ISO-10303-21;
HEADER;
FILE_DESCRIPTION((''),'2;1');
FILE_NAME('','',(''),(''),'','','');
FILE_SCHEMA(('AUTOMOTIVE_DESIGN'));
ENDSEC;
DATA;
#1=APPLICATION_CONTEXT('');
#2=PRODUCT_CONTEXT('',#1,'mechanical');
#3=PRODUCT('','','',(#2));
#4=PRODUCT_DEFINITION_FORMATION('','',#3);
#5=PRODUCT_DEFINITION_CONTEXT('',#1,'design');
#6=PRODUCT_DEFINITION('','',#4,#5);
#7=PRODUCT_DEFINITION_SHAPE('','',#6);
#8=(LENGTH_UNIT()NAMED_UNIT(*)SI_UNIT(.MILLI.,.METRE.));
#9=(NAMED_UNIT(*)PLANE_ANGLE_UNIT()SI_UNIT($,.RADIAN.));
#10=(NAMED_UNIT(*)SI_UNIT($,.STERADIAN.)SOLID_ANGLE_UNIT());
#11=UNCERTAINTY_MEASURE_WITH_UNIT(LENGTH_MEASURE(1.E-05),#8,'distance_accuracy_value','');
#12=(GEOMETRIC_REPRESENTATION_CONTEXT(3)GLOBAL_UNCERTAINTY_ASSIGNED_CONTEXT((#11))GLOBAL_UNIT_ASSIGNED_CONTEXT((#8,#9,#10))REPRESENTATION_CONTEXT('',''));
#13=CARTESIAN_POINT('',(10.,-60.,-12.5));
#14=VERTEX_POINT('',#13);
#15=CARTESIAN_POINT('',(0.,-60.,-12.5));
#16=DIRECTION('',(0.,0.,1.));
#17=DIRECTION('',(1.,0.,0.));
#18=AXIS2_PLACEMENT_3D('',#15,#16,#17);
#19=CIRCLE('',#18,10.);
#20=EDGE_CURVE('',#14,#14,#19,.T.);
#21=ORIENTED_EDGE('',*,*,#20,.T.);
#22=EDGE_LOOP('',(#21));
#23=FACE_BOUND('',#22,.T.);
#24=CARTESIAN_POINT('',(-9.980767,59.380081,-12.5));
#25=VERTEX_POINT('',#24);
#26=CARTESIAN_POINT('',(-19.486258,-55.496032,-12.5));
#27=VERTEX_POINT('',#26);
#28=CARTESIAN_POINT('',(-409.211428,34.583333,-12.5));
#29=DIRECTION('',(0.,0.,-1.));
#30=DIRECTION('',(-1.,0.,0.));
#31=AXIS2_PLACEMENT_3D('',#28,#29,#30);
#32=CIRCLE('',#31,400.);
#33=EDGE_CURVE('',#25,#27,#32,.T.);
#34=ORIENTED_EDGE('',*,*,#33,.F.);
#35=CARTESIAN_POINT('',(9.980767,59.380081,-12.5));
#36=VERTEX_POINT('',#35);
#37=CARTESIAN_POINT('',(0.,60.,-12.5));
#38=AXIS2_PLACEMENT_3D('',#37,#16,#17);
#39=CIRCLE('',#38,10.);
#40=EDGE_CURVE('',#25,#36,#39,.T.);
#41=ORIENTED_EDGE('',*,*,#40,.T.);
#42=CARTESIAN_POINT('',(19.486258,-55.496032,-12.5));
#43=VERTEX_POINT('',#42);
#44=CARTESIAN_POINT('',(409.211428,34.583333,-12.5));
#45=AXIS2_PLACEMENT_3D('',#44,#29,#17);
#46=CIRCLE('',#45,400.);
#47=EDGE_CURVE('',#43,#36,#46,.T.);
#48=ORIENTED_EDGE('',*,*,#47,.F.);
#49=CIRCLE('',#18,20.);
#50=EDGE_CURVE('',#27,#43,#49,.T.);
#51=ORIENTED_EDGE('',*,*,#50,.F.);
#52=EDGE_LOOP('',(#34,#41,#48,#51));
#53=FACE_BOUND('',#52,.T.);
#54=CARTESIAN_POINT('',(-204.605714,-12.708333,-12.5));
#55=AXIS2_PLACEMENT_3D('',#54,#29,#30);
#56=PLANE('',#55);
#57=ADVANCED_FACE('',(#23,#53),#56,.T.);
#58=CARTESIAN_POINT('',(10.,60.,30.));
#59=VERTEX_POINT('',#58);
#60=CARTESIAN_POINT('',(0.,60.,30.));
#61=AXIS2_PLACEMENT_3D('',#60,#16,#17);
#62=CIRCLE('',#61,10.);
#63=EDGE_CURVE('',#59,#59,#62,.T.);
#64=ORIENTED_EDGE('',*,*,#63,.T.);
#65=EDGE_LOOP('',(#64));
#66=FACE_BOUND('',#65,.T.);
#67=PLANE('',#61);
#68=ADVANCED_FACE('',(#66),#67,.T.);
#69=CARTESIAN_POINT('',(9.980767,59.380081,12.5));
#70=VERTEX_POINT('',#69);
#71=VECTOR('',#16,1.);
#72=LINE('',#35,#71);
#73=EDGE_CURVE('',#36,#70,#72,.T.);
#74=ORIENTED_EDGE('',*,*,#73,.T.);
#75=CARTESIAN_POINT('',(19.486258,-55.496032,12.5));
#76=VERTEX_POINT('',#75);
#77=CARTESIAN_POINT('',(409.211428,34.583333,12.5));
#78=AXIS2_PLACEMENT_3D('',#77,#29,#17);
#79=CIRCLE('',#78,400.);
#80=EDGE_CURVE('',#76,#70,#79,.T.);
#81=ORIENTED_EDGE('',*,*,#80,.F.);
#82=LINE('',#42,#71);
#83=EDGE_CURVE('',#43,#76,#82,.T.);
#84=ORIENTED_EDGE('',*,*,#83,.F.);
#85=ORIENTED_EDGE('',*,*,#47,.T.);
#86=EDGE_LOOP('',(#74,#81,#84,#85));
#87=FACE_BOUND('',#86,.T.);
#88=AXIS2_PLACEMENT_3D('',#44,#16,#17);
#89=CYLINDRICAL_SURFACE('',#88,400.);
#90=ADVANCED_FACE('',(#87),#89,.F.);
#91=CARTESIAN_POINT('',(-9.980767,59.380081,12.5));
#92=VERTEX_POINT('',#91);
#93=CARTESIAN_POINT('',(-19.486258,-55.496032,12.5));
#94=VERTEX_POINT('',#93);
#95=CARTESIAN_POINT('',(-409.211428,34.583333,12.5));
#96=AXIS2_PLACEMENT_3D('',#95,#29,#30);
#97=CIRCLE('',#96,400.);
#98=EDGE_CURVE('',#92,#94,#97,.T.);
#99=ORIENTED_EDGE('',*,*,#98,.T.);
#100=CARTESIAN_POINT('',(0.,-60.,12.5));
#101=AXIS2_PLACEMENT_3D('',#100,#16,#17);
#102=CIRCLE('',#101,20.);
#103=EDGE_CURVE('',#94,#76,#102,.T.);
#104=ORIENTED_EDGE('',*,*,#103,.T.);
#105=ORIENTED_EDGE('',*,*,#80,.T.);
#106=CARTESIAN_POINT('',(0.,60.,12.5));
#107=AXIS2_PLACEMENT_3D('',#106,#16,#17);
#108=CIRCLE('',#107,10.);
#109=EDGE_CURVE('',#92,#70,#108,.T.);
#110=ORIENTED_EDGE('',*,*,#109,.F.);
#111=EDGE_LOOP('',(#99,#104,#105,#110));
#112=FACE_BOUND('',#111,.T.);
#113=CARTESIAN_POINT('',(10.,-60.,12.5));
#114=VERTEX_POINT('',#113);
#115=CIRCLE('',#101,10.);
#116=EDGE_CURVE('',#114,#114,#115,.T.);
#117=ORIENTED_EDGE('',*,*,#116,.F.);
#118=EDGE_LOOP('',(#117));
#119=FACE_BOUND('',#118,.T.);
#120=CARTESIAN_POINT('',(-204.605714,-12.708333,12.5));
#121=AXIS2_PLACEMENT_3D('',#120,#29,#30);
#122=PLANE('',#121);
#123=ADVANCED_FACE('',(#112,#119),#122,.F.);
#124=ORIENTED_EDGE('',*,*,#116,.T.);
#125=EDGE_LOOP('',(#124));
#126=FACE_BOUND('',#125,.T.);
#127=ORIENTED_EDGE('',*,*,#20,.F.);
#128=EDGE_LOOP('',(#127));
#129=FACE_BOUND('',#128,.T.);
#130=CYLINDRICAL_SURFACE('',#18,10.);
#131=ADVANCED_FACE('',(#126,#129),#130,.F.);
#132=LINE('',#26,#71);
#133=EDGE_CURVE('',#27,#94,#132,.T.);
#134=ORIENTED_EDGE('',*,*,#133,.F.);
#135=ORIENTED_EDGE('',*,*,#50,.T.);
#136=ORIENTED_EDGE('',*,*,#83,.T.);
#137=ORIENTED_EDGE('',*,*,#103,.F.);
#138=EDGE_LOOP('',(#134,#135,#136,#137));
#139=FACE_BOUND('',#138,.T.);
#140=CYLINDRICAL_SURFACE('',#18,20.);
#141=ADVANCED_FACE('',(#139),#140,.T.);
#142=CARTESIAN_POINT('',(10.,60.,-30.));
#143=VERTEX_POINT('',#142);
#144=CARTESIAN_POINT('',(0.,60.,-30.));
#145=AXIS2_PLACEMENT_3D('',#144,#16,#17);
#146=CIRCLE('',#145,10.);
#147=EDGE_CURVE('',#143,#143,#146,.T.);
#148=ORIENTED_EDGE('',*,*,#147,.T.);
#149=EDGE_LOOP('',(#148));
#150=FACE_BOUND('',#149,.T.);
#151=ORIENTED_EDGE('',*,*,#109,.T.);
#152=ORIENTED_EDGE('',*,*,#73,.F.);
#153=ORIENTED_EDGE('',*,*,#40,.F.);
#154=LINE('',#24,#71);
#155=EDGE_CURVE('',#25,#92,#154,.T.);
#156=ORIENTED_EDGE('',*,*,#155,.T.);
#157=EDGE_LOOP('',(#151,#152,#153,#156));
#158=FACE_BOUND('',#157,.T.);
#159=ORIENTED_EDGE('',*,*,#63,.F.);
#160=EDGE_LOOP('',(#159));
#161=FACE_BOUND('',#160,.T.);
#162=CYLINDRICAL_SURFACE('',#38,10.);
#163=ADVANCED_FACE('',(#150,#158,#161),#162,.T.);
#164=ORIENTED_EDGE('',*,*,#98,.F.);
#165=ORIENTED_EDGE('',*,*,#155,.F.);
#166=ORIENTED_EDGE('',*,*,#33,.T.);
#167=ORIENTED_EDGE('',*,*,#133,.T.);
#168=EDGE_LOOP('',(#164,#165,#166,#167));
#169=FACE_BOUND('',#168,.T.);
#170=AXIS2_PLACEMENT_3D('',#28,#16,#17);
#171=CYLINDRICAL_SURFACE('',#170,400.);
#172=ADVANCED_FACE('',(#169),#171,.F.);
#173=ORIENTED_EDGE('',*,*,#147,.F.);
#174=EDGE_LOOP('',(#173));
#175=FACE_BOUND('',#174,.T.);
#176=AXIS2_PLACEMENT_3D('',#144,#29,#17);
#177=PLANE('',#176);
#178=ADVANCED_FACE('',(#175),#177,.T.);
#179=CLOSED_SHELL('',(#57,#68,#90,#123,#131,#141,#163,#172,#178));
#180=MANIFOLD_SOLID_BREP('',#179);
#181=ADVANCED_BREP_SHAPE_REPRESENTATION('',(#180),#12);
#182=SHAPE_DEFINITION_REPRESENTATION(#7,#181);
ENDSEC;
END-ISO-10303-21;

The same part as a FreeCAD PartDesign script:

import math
import FreeCAD as App
import Part
import Sketcher
Q = App.Units.Quantity

doc = App.newDocument("Part")
body = doc.addObject("PartDesign::Body", "Body")

sketch1 = body.newObject("Sketcher::SketchObject", "Sketch")
sketch1.AttachmentSupport = (doc.getObject("XY_Plane"), [""])
sketch1.MapMode = "FlatFace"
sketch1.addGeometry(Part.ArcOfCircle(Part.Circle(App.Vector(0, 60, 0), App.Vector(0, 0, 1), 10), math.radians(-3.554151), math.radians(183.554151)), False)
sketch1.addGeometry(Part.ArcOfCircle(Part.Circle(App.Vector(-409.211428, 34.583333, 0), App.Vector(0, 0, 1), 400), math.radians(-13.014546), math.radians(3.554151)), False)
sketch1.addGeometry(Part.ArcOfCircle(Part.Circle(App.Vector(0, -60, 0), App.Vector(0, 0, 1), 20), math.radians(166.985454), math.radians(373.014546)), False)
sketch1.addGeometry(Part.ArcOfCircle(Part.Circle(App.Vector(409.211428, 34.583333, 0), App.Vector(0, 0, 1), 400), math.radians(176.445849), math.radians(193.014546)), False)
sketch1.addGeometry(Part.Circle(App.Vector(0, -60, 0), App.Vector(0, 0, 1), 10), False)
sketch1.addConstraint(Sketcher.Constraint("Tangent", 0, 2, 1, 2))
sketch1.addConstraint(Sketcher.Constraint("Tangent", 1, 1, 2, 1))
sketch1.addConstraint(Sketcher.Constraint("Tangent", 2, 2, 3, 2))
sketch1.addConstraint(Sketcher.Constraint("Tangent", 3, 1, 0, 1))
sketch1.addConstraint(Sketcher.Constraint("Coincident", 4, 3, 2, 3))
sketch1.addConstraint(Sketcher.Constraint("Equal", 1, 3))
sketch1.addConstraint(Sketcher.Constraint("Equal", 0, 4))
sketch1.addConstraint(Sketcher.Constraint("Symmetric", 0, 3, 2, 3, -1, 1))
sketch1.addConstraint(Sketcher.Constraint("PointOnObject", 0, 3, -2))
sketch1.addConstraint(Sketcher.Constraint("Diameter", 4, Q("20 mm")))
sketch1.addConstraint(Sketcher.Constraint("Radius", 1, Q("400 mm")))
sketch1.addConstraint(Sketcher.Constraint("Radius", 2, Q("20 mm")))
sketch1.addConstraint(Sketcher.Constraint("DistanceY", -1, 1, 0, 3, Q("60 mm")))
pad1 = body.newObject("PartDesign::Pad", "Pad")
pad1.Profile = sketch1
pad1.Type = "TwoLengths"
pad1.Length = 12.5
pad1.Length2 = 12.5

sketch2 = body.newObject("Sketcher::SketchObject", "Sketch001")
sketch2.AttachmentSupport = (doc.getObject("XY_Plane"), [""])
sketch2.MapMode = "FlatFace"
sketch2.AttachmentOffset = App.Placement(App.Vector(0, 0, 12.5), App.Rotation())
sketch2.addGeometry(Part.Circle(App.Vector(0, 60, 0), App.Vector(0, 0, 1), 10), False)
sketch2.addConstraint(Sketcher.Constraint("PointOnObject", 0, 3, -2))
sketch2.addConstraint(Sketcher.Constraint("Diameter", 0, Q("20 mm")))
sketch2.addConstraint(Sketcher.Constraint("DistanceY", -1, 1, 0, 3, Q("60 mm")))
pad2 = body.newObject("PartDesign::Pad", "Pad001")
pad2.Profile = sketch2
pad2.Length = 17.5
doc.recompute()

mirrored = body.newObject("PartDesign::Mirrored", "Mirrored")
mirrored.Originals = [pad2]
mirrored.MirrorPlane = (doc.getObject("XY_Plane"), [""])
body.Tip = mirrored

doc.recompute()
